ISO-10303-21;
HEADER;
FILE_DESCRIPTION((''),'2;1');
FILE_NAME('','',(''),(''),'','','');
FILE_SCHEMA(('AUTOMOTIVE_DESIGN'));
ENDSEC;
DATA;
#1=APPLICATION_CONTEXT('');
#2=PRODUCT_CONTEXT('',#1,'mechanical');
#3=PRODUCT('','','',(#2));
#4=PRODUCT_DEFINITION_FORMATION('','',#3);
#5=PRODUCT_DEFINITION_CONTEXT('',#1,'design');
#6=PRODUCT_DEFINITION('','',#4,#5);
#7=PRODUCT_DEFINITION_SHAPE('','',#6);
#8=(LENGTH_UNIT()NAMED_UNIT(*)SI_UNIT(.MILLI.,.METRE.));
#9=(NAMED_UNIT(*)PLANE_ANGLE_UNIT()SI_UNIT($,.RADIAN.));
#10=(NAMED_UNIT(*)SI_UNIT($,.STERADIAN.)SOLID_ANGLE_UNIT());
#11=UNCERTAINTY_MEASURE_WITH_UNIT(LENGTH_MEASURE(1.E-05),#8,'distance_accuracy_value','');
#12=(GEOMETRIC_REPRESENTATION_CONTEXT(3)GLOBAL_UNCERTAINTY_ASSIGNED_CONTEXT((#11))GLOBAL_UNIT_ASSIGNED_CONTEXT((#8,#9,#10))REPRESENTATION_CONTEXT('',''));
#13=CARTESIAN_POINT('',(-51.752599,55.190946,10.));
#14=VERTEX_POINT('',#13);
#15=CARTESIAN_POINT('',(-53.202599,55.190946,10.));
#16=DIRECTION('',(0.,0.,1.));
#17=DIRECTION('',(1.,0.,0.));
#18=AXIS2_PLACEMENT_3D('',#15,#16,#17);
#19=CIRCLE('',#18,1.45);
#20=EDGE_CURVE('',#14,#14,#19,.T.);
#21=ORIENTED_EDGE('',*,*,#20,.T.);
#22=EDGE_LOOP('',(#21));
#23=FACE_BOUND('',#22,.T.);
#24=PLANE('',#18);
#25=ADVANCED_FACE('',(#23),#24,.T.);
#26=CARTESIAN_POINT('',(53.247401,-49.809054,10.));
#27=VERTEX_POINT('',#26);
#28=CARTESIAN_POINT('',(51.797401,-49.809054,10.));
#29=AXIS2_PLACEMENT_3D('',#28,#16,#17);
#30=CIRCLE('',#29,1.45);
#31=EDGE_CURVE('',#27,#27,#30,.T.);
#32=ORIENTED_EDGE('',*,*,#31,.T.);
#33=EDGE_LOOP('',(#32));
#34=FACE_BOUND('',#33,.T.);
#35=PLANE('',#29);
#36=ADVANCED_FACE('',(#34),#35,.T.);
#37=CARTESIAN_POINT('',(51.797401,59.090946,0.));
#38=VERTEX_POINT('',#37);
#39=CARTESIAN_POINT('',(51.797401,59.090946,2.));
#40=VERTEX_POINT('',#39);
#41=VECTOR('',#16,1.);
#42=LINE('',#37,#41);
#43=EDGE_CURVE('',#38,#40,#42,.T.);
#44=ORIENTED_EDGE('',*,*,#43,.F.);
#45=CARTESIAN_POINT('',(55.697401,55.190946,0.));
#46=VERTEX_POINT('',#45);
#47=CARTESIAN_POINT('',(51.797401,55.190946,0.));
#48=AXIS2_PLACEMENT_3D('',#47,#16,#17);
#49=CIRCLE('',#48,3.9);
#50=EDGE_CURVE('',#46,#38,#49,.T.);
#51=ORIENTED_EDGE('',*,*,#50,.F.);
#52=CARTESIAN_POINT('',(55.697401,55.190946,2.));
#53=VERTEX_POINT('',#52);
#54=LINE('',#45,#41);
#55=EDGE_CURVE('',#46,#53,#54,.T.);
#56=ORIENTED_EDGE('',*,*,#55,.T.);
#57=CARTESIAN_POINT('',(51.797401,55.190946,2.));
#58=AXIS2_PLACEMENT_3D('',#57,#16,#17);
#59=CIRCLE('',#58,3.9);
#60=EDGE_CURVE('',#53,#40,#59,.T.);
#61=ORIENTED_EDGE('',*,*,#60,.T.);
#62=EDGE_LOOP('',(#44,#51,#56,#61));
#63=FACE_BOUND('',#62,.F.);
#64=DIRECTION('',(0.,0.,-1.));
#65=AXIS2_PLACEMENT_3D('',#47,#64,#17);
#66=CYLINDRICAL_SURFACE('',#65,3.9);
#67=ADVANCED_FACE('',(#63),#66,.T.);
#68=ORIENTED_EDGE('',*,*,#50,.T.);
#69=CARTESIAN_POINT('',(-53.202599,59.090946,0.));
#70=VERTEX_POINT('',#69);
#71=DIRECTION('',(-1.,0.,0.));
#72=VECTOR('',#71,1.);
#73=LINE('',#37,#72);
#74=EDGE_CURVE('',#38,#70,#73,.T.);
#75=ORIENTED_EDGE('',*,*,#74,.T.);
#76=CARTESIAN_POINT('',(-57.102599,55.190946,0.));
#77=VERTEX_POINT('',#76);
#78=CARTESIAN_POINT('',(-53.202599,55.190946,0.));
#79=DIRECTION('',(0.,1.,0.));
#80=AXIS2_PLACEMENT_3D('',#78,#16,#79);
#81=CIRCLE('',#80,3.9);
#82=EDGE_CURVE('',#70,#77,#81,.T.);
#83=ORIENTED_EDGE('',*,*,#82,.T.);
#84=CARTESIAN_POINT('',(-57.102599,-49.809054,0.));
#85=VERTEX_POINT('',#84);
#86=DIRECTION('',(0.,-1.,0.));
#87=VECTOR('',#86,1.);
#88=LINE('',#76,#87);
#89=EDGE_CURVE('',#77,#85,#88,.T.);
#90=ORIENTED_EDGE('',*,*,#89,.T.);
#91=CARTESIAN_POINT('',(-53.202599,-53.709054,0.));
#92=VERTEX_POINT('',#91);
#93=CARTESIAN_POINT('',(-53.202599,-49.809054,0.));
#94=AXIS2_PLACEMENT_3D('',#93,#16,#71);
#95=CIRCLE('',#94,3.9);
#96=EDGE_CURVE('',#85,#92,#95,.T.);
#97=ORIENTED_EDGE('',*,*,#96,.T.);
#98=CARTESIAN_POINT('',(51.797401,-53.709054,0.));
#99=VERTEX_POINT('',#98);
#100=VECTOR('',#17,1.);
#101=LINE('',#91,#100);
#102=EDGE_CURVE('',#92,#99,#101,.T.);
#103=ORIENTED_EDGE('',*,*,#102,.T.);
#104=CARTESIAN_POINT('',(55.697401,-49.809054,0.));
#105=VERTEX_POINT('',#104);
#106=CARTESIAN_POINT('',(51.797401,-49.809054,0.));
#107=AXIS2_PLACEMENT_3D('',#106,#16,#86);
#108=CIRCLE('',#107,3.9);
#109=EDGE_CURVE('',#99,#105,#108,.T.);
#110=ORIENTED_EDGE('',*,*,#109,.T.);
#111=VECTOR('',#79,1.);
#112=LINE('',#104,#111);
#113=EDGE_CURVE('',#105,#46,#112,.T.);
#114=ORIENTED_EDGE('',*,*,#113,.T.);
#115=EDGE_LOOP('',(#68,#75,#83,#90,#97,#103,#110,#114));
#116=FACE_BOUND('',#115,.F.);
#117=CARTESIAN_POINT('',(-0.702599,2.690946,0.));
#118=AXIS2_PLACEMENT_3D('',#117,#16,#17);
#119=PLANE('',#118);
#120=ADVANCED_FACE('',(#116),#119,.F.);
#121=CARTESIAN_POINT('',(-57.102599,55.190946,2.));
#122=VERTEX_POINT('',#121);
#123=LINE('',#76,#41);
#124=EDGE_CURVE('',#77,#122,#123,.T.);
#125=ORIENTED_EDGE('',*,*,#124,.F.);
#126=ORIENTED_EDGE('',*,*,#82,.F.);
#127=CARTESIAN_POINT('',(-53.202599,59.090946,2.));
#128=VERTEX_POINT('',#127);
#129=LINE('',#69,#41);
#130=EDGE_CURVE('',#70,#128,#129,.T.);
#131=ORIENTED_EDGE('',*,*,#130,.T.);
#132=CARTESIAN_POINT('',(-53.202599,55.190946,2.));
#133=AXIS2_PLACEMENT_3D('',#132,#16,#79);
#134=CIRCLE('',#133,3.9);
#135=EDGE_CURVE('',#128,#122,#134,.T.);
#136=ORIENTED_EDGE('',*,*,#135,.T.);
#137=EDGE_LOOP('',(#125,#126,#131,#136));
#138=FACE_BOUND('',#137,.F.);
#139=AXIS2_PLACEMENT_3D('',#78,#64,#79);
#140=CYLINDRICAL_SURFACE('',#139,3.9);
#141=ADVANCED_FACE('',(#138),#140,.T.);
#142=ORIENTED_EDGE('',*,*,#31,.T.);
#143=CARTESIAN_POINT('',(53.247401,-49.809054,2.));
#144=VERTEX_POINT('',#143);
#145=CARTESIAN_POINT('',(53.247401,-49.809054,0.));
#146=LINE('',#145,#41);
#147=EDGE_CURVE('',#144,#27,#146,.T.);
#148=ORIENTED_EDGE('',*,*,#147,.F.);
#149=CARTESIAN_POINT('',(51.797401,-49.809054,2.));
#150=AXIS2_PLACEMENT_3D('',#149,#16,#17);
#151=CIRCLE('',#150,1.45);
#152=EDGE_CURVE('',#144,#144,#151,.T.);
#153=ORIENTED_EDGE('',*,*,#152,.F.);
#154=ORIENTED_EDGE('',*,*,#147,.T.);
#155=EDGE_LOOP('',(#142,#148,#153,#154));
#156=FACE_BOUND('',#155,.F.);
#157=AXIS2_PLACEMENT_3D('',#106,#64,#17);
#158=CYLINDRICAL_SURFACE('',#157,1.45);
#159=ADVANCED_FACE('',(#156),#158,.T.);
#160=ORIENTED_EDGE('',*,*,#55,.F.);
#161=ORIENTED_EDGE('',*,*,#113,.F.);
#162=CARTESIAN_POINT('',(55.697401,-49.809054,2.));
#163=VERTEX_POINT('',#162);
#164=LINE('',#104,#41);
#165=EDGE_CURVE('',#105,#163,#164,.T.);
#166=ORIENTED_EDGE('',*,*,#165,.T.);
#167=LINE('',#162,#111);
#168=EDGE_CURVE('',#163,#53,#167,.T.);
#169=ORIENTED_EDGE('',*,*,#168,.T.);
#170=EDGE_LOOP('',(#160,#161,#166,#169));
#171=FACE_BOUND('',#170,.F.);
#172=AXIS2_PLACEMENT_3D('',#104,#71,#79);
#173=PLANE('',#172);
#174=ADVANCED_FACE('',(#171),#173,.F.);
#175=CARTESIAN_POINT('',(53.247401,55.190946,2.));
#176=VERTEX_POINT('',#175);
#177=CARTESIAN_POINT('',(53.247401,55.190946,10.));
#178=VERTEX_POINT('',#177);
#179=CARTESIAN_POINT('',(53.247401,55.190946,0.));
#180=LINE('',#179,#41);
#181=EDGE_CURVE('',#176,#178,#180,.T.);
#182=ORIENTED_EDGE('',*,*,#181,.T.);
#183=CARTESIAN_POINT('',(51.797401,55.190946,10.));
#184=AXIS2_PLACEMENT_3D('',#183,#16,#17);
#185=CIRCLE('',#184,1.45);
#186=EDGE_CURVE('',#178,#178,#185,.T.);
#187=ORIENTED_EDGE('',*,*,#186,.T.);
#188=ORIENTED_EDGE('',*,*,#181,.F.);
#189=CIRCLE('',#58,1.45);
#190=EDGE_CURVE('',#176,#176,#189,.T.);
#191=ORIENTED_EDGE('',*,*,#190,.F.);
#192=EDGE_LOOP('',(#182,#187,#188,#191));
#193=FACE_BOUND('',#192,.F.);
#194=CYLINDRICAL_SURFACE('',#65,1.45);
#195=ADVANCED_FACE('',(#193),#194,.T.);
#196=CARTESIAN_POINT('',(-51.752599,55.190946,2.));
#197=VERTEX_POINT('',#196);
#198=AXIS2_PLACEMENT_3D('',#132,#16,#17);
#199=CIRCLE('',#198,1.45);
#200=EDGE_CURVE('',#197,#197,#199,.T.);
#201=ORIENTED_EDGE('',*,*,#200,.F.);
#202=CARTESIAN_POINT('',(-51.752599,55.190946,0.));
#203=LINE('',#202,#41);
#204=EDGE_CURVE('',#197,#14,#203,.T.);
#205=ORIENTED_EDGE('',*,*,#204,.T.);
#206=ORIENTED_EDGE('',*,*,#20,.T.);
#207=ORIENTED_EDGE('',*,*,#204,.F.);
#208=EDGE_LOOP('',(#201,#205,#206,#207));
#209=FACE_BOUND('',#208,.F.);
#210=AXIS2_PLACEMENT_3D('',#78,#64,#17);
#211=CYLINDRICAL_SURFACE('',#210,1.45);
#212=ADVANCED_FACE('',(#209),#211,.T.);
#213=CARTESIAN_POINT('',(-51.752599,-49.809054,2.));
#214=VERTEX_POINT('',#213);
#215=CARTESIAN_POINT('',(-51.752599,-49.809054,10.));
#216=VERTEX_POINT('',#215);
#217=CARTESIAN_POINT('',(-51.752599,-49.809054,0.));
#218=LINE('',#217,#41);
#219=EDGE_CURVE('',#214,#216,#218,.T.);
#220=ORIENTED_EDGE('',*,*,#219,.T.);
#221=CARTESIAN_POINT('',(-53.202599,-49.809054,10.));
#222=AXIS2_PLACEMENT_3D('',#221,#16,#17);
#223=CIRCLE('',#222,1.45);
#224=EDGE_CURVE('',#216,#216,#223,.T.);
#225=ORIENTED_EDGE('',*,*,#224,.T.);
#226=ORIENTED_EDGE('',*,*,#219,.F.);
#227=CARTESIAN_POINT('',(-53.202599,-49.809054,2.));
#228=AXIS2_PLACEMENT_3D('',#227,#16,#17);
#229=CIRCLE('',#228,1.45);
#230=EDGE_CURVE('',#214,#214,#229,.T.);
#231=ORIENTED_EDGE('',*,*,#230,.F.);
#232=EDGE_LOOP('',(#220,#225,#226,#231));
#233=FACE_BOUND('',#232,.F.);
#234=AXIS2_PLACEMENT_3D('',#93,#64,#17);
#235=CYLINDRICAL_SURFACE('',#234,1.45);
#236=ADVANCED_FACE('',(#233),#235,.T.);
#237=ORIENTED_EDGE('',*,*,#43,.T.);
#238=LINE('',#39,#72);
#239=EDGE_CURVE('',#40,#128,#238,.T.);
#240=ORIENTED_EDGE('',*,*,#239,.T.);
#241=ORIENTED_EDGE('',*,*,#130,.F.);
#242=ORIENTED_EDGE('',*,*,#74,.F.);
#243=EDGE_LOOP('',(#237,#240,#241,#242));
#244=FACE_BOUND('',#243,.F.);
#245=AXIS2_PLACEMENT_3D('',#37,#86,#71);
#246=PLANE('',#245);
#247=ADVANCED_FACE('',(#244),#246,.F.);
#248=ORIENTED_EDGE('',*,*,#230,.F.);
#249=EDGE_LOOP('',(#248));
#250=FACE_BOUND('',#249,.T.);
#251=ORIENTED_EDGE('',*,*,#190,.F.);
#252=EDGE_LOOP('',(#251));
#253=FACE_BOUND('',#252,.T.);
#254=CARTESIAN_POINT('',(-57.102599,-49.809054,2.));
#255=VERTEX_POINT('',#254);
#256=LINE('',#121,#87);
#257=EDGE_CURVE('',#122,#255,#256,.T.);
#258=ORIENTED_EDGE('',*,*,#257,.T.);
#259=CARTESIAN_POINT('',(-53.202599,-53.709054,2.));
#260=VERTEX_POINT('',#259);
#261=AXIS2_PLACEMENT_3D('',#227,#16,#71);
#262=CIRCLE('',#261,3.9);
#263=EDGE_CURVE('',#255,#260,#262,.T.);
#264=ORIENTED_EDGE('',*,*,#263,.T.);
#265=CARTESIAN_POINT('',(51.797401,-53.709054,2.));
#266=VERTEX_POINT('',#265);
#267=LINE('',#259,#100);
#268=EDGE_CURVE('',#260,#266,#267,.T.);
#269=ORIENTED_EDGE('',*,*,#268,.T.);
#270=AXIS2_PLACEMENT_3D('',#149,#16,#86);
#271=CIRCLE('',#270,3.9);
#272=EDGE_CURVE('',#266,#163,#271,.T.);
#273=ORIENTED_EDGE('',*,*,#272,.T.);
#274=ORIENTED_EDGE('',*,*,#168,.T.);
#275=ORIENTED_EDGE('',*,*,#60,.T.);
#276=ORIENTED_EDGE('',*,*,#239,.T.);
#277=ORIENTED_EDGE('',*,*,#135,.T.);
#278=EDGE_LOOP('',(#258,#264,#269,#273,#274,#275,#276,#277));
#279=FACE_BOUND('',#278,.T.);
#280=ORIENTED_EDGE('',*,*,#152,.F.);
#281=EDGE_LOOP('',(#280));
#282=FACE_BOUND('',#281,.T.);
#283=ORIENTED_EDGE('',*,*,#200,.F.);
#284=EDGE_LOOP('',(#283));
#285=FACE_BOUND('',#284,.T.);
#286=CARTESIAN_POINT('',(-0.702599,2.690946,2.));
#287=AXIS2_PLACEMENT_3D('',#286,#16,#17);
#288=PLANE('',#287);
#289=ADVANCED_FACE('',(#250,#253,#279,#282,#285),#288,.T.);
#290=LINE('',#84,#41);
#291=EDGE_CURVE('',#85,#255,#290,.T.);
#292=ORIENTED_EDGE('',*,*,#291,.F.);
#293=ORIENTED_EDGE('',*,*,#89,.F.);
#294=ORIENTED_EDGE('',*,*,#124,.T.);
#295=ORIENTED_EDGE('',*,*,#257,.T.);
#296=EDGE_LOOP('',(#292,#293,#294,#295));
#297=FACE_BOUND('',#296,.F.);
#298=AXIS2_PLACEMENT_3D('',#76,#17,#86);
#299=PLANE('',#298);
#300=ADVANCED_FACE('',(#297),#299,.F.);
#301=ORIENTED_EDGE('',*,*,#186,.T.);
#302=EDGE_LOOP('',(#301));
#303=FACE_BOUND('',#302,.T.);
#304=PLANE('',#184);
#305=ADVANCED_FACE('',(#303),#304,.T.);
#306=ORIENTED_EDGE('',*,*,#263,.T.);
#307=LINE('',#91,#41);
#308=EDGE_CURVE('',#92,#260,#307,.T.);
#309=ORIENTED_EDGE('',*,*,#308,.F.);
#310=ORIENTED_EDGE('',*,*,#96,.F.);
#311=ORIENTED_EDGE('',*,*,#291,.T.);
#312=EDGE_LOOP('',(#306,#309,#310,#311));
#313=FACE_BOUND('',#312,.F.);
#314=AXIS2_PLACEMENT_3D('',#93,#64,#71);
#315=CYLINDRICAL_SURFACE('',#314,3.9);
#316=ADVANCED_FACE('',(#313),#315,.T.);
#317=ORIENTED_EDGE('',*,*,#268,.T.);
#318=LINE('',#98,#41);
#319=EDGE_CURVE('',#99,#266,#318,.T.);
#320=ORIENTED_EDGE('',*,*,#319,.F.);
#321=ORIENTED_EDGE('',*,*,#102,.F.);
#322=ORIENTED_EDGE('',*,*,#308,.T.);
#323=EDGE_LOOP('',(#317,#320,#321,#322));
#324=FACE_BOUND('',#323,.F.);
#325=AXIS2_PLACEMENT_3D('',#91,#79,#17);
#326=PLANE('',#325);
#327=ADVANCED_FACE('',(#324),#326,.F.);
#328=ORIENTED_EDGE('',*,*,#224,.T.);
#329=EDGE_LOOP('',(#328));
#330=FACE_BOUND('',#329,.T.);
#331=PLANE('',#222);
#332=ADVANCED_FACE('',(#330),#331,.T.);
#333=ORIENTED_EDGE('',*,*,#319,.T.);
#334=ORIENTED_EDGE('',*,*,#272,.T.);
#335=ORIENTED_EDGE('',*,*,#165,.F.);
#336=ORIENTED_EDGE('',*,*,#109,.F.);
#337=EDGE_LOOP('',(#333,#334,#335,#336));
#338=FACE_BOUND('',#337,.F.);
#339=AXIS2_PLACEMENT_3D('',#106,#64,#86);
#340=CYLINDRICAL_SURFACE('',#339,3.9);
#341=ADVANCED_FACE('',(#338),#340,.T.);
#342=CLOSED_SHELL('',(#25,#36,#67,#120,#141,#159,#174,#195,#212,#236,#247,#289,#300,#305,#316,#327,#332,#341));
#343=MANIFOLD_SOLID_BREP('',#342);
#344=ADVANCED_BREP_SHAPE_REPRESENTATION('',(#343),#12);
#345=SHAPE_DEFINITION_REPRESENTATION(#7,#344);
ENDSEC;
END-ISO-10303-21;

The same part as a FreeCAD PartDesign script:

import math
import FreeCAD as App
import Part
import Sketcher
Q = App.Units.Quantity

doc = App.newDocument("Part")
body = doc.addObject("PartDesign::Body", "Body")

sketch1 = body.newObject("Sketcher::SketchObject", "Sketch")
sketch1.AttachmentSupport = (doc.getObject("XY_Plane"), [""])
sketch1.MapMode = "FlatFace"
sketch1.addGeometry(Part.ArcOfCircle(Part.Circle(App.Vector(-53.202599, 55.190946, 0), App.Vector(0, 0, 1), 3.9), math.radians(90), math.radians(180)), False)
sketch1.addGeometry(Part.LineSegment(App.Vector(-57.102599, 55.190946, 0), App.Vector(-57.102599, -49.809054, 0)), False)
sketch1.addGeometry(Part.ArcOfCircle(Part.Circle(App.Vector(-53.202599, -49.809054, 0), App.Vector(0, 0, 1), 3.9), math.radians(180), math.radians(270)), False)
sketch1.addGeometry(Part.LineSegment(App.Vector(-53.202599, -53.709054, 0), App.Vector(51.797401, -53.709054, 0)), False)
sketch1.addGeometry(Part.ArcOfCircle(Part.Circle(App.Vector(51.797401, -49.809054, 0), App.Vector(0, 0, 1), 3.9), math.radians(-90), math.radians(0)), False)
sketch1.addGeometry(Part.LineSegment(App.Vector(55.697401, -49.809054, 0), App.Vector(55.697401, 55.190946, 0)), False)
sketch1.addGeometry(Part.ArcOfCircle(Part.Circle(App.Vector(51.797401, 55.190946, 0), App.Vector(0, 0, 1), 3.9), math.radians(0), math.radians(90)), False)
sketch1.addGeometry(Part.LineSegment(App.Vector(51.797401, 59.090946, 0), App.Vector(-53.202599, 59.090946, 0)), False)
sketch1.addGeometry(Part.Circle(App.Vector(-53.202599, -49.809054, 0), App.Vector(0, 0, 1), 1.45), False)
sketch1.addGeometry(Part.Circle(App.Vector(51.797401, -49.809054, 0), App.Vector(0, 0, 1), 1.45), False)
sketch1.addGeometry(Part.Circle(App.Vector(-53.202599, 55.190946, 0), App.Vector(0, 0, 1), 1.45), False)
sketch1.addGeometry(Part.Circle(App.Vector(51.797401, 55.190946, 0), App.Vector(0, 0, 1), 1.45), False)
sketch1.addConstraint(Sketcher.Constraint("Tangent", 0, 2, 1, 1))
sketch1.addConstraint(Sketcher.Constraint("Tangent", 1, 2, 2, 1))
sketch1.addConstraint(Sketcher.Constraint("Tangent", 2, 2, 3, 1))
sketch1.addConstraint(Sketcher.Constraint("Tangent", 3, 2, 4, 1))
sketch1.addConstraint(Sketcher.Constraint("Tangent", 4, 2, 5, 1))
sketch1.addConstraint(Sketcher.Constraint("Tangent", 5, 2, 6, 1))
sketch1.addConstraint(Sketcher.Constraint("Tangent", 6, 2, 7, 1))
sketch1.addConstraint(Sketcher.Constraint("Tangent", 7, 2, 0, 1))
sketch1.addConstraint(Sketcher.Constraint("Vertical", 1))
sketch1.addConstraint(Sketcher.Constraint("Horizontal", 3))
sketch1.addConstraint(Sketcher.Constraint("Vertical", 5))
sketch1.addConstraint(Sketcher.Constraint("Horizontal", 7))
sketch1.addConstraint(Sketcher.Constraint("Coincident", 8, 3, 2, 3))
sketch1.addConstraint(Sketcher.Constraint("Coincident", 9, 3, 4, 3))
sketch1.addConstraint(Sketcher.Constraint("Coincident", 10, 3, 0, 3))
sketch1.addConstraint(Sketcher.Constraint("Coincident", 11, 3, 6, 3))
sketch1.addConstraint(Sketcher.Constraint("Equal", 0, 2))
sketch1.addConstraint(Sketcher.Constraint("Equal", 2, 4))
sketch1.addConstraint(Sketcher.Constraint("Equal", 4, 6))
sketch1.addConstraint(Sketcher.Constraint("Equal", 8, 9))
sketch1.addConstraint(Sketcher.Constraint("Equal", 9, 10))
sketch1.addConstraint(Sketcher.Constraint("Equal", 10, 11))
sketch1.addConstraint(Sketcher.Constraint("Equal", 7, 1))
sketch1.addConstraint(Sketcher.Constraint("Diameter", 8, Q("2.9 mm")))
sketch1.addConstraint(Sketcher.Constraint("Radius", 0, Q("3.9 mm")))
sketch1.addConstraint(Sketcher.Constraint("DistanceX", 3, 1, 3, 2, Q("105 mm")))
sketch1.addConstraint(Sketcher.Constraint("DistanceX", 0, 3, -1, 1, Q("53.202599 mm")))
sketch1.addConstraint(Sketcher.Constraint("DistanceY", -1, 1, 0, 3, Q("55.190946 mm")))
pad1 = body.newObject("PartDesign::Pad", "Pad")
pad1.Profile = sketch1
pad1.Length = 2

sketch2 = body.newObject("Sketcher::SketchObject", "Sketch001")
sketch2.AttachmentSupport = (doc.getObject("XY_Plane"), [""])
sketch2.MapMode = "FlatFace"
sketch2.addGeometry(Part.Circle(App.Vector(-53.202599, 55.190946, 0), App.Vector(0, 0, 1), 1.45), False)
sketch2.addGeometry(Part.Circle(App.Vector(51.797401, 55.190946, 0), App.Vector(0, 0, 1), 1.45), False)
sketch2.addGeometry(Part.Circle(App.Vector(-53.202599, -49.809054, 0), App.Vector(0, 0, 1), 1.45), False)
sketch2.addGeometry(Part.Circle(App.Vector(51.797401, -49.809054, 0), App.Vector(0, 0, 1), 1.45), False)
sketch2.addConstraint(Sketcher.Constraint("Equal", 0, 1))
sketch2.addConstraint(Sketcher.Constraint("Equal", 1, 2))
sketch2.addConstraint(Sketcher.Constraint("Equal", 2, 3))
sketch2.addConstraint(Sketcher.Constraint("Horizontal", 0, 3, 1, 3))
sketch2.addConstraint(Sketcher.Constraint("Horizontal", 2, 3, 3, 3))
sketch2.addConstraint(Sketcher.Constraint("Vertical", 0, 3, 2, 3))
sketch2.addConstraint(Sketcher.Constraint("Vertical", 1, 3, 3, 3))
sketch2.addConstraint(Sketcher.Constraint("Diameter", 0, Q("2.9 mm")))
sketch2.addConstraint(Sketcher.Constraint("DistanceX", 0, 3, 1, 3, Q("105 mm")))
sketch2.addConstraint(Sketcher.Constraint("DistanceY", 2, 3, 0, 3, Q("105 mm")))
sketch2.addConstraint(Sketcher.Constraint("DistanceX", 0, 3, -1, 1, Q("53.202599 mm")))
sketch2.addConstraint(Sketcher.Constraint("DistanceY", -1, 1, 0, 3, Q("55.190946 mm")))
pad2 = body.newObject("PartDesign::Pad", "Pad001")
pad2.Profile = sketch2
pad2.Length = 10

doc.recompute()
